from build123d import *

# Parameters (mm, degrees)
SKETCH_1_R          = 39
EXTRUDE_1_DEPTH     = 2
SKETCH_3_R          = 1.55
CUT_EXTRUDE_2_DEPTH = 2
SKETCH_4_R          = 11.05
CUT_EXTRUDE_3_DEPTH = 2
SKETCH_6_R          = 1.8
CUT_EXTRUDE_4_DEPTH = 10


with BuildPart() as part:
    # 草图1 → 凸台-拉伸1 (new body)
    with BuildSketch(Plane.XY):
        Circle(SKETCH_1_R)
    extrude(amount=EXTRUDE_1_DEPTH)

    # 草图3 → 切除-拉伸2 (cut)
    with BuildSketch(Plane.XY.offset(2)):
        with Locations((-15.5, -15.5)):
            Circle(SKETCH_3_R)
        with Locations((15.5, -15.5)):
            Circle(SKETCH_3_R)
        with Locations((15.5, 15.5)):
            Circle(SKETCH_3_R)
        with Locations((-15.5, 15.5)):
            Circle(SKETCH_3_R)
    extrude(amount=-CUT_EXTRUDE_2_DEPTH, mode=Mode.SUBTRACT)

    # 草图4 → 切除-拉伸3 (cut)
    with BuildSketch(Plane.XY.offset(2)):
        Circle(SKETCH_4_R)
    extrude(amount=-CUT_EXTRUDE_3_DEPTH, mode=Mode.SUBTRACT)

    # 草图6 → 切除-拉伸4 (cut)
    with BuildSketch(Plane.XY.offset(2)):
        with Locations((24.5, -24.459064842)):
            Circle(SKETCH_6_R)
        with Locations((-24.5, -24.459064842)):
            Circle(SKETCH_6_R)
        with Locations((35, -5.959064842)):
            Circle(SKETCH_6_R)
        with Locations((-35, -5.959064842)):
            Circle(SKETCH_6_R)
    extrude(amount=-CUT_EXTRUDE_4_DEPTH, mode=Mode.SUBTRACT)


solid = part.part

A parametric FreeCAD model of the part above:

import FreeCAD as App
import Part
import Sketcher
from FreeCAD import Vector
Q = App.Units.Quantity

doc = App.newDocument("Part")
body = doc.addObject("PartDesign::Body", "Body")

sketch1 = body.newObject("Sketcher::SketchObject", "Sketch")
sketch1.AttachmentSupport = (doc.getObject("XY_Plane"), [""])
sketch1.MapMode = "FlatFace"
sketch1.addGeometry(Part.Circle(Vector(0, 0, 0), Vector(0, 0, 1), 39), False)
sketch1.addConstraint(Sketcher.Constraint("Coincident", 0, 3, -1, 1))
sketch1.addConstraint(Sketcher.Constraint("Diameter", 0, Q("78 mm")))
pad1 = body.newObject("PartDesign::Pad", "Pad")
pad1.Profile = sketch1
pad1.Length = 2

sketch2 = body.newObject("Sketcher::SketchObject", "Sketch001")
sketch2.AttachmentSupport = (doc.getObject("XY_Plane"), [""])
sketch2.MapMode = "FlatFace"
sketch2.AttachmentOffset = App.Placement(Vector(0, 0, 2), App.Rotation())
sketch2.addGeometry(Part.Circle(Vector(-15.5, -15.5, 0), Vector(0, 0, 1), 1.55), False)
sketch2.addGeometry(Part.Circle(Vector(15.5, -15.5, 0), Vector(0, 0, 1), 1.55), False)
sketch2.addGeometry(Part.Circle(Vector(15.5, 15.5, 0), Vector(0, 0, 1), 1.55), False)
sketch2.addGeometry(Part.Circle(Vector(-15.5, 15.5, 0), Vector(0, 0, 1), 1.55), False)
sketch2.addConstraint(Sketcher.Constraint("Equal", 0, 1))
sketch2.addConstraint(Sketcher.Constraint("Equal", 1, 2))
sketch2.addConstraint(Sketcher.Constraint("Equal", 2, 3))
sketch2.addConstraint(Sketcher.Constraint("Symmetric", 0, 3, 2, 3, -1, 1))
sketch2.addConstraint(Sketcher.Constraint("Symmetric", 1, 3, 3, 3, -1, 1))
sketch2.addConstraint(Sketcher.Constraint("Symmetric", 0, 3, 1, 3, -2))
sketch2.addConstraint(Sketcher.Constraint("Diameter", 0, Q("3.1 mm")))
sketch2.addConstraint(Sketcher.Constraint("DistanceX", 0, 3, 1, 3, Q("31 mm")))
sketch2.addConstraint(Sketcher.Constraint("DistanceY", 1, 3, 2, 3, Q("31 mm")))
pocket1 = body.newObject("PartDesign::Pocket", "Pocket")
pocket1.Profile = sketch2
pocket1.Length = 2

sketch3 = body.newObject("Sketcher::SketchObject", "Sketch002")
sketch3.AttachmentSupport = (doc.getObject("XY_Plane"), [""])
sketch3.MapMode = "FlatFace"
sketch3.AttachmentOffset = App.Placement(Vector(0, 0, 2), App.Rotation())
sketch3.addGeometry(Part.Circle(Vector(0, 0, 0), Vector(0, 0, 1), 11.05), False)
sketch3.addConstraint(Sketcher.Constraint("Coincident", 0, 3, -1, 1))
sketch3.addConstraint(Sketcher.Constraint("Diameter", 0, Q("22.1 mm")))
pocket2 = body.newObject("PartDesign::Pocket", "Pocket001")
pocket2.Profile = sketch3
pocket2.Length = 2

sketch4 = body.newObject("Sketcher::SketchObject", "Sketch003")
sketch4.AttachmentSupport = (doc.getObject("XY_Plane"), [""])
sketch4.MapMode = "FlatFace"
sketch4.AttachmentOffset = App.Placement(Vector(0, 0, 2), App.Rotation())
sketch4.addGeometry(Part.Circle(Vector(24.5, -24.459065, 0), Vector(0, 0, 1), 1.8), False)
sketch4.addGeometry(Part.Circle(Vector(-24.5, -24.459065, 0), Vector(0, 0, 1), 1.8), False)
sketch4.addGeometry(Part.Circle(Vector(35, -5.959065, 0), Vector(0, 0, 1), 1.8), False)
sketch4.addGeometry(Part.Circle(Vector(-35, -5.959065, 0), Vector(0, 0, 1), 1.8), False)
sketch4.addConstraint(Sketcher.Constraint("Equal", 0, 1))
sketch4.addConstraint(Sketcher.Constraint("Equal", 1, 2))
sketch4.addConstraint(Sketcher.Constraint("Equal", 2, 3))
sketch4.addConstraint(Sketcher.Constraint("Symmetric", 0, 3, 1, 3, -2))
sketch4.addConstraint(Sketcher.Constraint("Symmetric", 2, 3, 3, 3, -2))
sketch4.addConstraint(Sketcher.Constraint("Diameter", 0, Q("3.6 mm")))
sketch4.addConstraint(Sketcher.Constraint("DistanceX", -1, 1, 2, 3, Q("35 mm")))
sketch4.addConstraint(Sketcher.Constraint("DistanceX", 1, 3, 0, 3, Q("49 mm")))
sketch4.addConstraint(Sketcher.Constraint("DistanceY", 0, 3, 2, 3, Q("18.5 mm")))
sketch4.addConstraint(Sketcher.Constraint("DistanceY", 0, 3, -1, 1, Q("24.459065 mm")))
pocket3 = body.newObject("PartDesign::Pocket", "Pocket002")
pocket3.Profile = sketch4
pocket3.Length = 10

doc.recompute()
